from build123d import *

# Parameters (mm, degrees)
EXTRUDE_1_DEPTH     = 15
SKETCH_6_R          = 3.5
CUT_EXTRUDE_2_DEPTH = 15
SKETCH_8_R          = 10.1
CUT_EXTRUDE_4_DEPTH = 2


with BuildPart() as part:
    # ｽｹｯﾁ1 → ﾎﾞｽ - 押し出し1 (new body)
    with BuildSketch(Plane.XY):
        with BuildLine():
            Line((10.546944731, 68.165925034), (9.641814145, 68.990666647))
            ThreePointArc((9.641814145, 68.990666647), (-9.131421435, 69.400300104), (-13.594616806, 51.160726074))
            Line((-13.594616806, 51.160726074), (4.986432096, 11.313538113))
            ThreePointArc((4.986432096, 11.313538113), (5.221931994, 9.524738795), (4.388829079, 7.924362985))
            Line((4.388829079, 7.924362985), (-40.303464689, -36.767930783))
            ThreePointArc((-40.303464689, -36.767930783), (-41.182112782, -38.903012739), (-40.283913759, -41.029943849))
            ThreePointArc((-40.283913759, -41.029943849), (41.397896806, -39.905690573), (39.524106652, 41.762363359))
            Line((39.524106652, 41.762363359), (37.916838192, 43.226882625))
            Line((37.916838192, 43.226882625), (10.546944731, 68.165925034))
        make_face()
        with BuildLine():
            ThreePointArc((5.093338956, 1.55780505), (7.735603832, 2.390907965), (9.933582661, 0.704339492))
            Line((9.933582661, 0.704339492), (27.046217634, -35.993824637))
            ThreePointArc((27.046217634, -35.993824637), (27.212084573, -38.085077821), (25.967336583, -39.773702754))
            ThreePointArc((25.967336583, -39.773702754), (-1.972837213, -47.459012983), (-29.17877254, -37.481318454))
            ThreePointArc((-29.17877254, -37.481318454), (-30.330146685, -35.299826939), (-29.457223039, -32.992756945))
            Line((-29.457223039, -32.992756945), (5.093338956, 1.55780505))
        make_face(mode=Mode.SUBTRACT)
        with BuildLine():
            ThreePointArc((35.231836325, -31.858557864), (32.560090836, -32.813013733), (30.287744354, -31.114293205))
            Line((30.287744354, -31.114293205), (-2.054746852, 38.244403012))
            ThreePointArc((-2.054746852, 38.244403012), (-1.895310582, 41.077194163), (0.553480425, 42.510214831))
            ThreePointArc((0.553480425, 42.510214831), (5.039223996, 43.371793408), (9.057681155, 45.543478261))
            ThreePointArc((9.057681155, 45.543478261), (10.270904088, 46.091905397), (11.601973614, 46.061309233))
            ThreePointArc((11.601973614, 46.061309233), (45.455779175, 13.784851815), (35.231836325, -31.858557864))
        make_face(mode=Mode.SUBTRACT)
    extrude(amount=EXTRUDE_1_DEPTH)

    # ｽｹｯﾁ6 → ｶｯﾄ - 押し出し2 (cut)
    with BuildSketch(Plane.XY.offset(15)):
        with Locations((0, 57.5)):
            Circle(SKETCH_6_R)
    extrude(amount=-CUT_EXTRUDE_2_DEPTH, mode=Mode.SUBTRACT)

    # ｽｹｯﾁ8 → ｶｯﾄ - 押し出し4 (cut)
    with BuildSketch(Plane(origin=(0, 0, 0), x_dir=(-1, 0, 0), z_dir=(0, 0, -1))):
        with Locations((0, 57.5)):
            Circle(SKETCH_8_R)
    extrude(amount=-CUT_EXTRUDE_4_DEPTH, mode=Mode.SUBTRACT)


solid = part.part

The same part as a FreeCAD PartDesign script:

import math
import FreeCAD as App
import Part
import Sketcher

doc = App.newDocument("Part")
params = doc.addObject("Spreadsheet::Sheet", "Params")
for row, (alias, value) in enumerate([
    ("sketch1_radius", "15 mm"),
    ("sketch1_radius2", "3 mm"),
    ("sketch1_radius3", "3 mm"),
    ("sketch1_radius4", "3 mm"),
    ("sketch1_radius5", "3 mm"),
    ("pad1_length", "15 mm"),
    ("sketch2_diameter", "7 mm"),
    ("pocket1_length", "15 mm"),
    ("sketch3_diameter", "20.2 mm"),
    ("pocket2_length", "2 mm"),
], start=1):
    params.set(f"A{row}", alias)
    params.set(f"B{row}", "=" + value)
    params.setAlias(f"B{row}", alias)

body = doc.addObject("PartDesign::Body", "Body")

sketch1 = body.newObject("Sketcher::SketchObject", "Sketch")
sketch1.AttachmentSupport = (doc.getObject("XY_Plane"), [""])
sketch1.MapMode = "FlatFace"
sketch1.addGeometry(Part.LineSegment(App.Vector(10.546945, 68.165925, 0), App.Vector(9.641814, 68.990667, 0)), False)
sketch1.addGeometry(Part.ArcOfCircle(Part.Circle(App.Vector(0, 57.5, 0), App.Vector(0, 0, 1), 15), math.radians(50), math.radians(205)), False)
sketch1.addGeometry(Part.LineSegment(App.Vector(-13.594617, 51.160726, 0), App.Vector(4.986432, 11.313538, 0)), False)
sketch1.addGeometry(Part.ArcOfCircle(Part.Circle(App.Vector(2.267509, 10.045683, 0), App.Vector(0, 0, 1), 3), math.radians(-45), math.radians(25)), False)
sketch1.addGeometry(Part.LineSegment(App.Vector(4.388829, 7.924363, 0), App.Vector(-40.303465, -36.767931, 0)), False)
sketch1.addGeometry(Part.ArcOfCircle(Part.Circle(App.Vector(-38.182144, -38.889251, 0), App.Vector(0, 0, 1), 3), math.radians(135), math.radians(225.525657)), False)
sketch1.addGeometry(Part.ArcOfCircle(Part.Circle(App.Vector(0, 0, 0), App.Vector(0, 0, 1), 57.5), math.radians(-134.474343), math.radians(46.577265)), False)
sketch1.addGeometry(Part.LineSegment(App.Vector(39.524107, 41.762363, 0), App.Vector(37.916838, 43.226883, 0)), False)
sketch1.addGeometry(Part.LineSegment(App.Vector(37.916838, 43.226883, 0), App.Vector(10.546945, 68.165925, 0)), False)
sketch1.addGeometry(Part.LineSegment(App.Vector(-29.457223, -32.992757, 0), App.Vector(5.093339, 1.557805, 0)), False)
sketch1.addGeometry(Part.ArcOfCircle(Part.Circle(App.Vector(7.214659, -0.563515, 0), App.Vector(0, 0, 1), 3), math.radians(25), math.radians(135)), False)
sketch1.addGeometry(Part.LineSegment(App.Vector(9.933583, 0.704339, 0), App.Vector(27.046218, -35.993825, 0)), False)
sketch1.addGeometry(Part.ArcOfCircle(Part.Circle(App.Vector(24.327294, -37.261679, 0), App.Vector(0, 0, 1), 3), math.radians(-56.860403), math.radians(25)), False)
sketch1.addGeometry(Part.ArcOfCircle(Part.Circle(App.Vector(0, 0, 0), App.Vector(0, 0, 1), 47.5), math.radians(-127.900345), math.radians(-56.860403)), False)
sketch1.addGeometry(Part.ArcOfCircle(Part.Circle(App.Vector(-27.335903, -35.114077, 0), App.Vector(0, 0, 1), 3), math.radians(135), math.radians(232.099655)), False)
sketch1.addGeometry(Part.ArcOfCircle(Part.Circle(App.Vector(0, 0, 0), App.Vector(0, 0, 1), 47.5), math.radians(-42.121615), math.radians(75.862362)), False)
sketch1.addGeometry(Part.ArcOfCircle(Part.Circle(App.Vector(33.006668, -29.846438, 0), App.Vector(0, 0, 1), 3), math.radians(-155), math.radians(-42.121615)), False)
sketch1.addGeometry(Part.LineSegment(App.Vector(30.287744, -31.114293, 0), App.Vector(-2.054747, 38.244403, 0)), False)
sketch1.addGeometry(Part.ArcOfCircle(Part.Circle(App.Vector(0.664177, 39.512258, 0), App.Vector(0, 0, 1), 3), math.radians(92.11462), math.radians(205)), False)
sketch1.addGeometry(Part.ArcOfCircle(Part.Circle(App.Vector(0, 57.5, 0), App.Vector(0, 0, 1), 15), math.radians(-87.88538), math.radians(-52.854196)), False)
sketch1.addGeometry(Part.ArcOfCircle(Part.Circle(App.Vector(10.869217, 43.152174, 0), App.Vector(0, 0, 1), 3), math.radians(75.862362), math.radians(127.145804)), False)
sketch1.addConstraint(Sketcher.Constraint("Coincident", 0, 2, 1, 1))
sketch1.addConstraint(Sketcher.Constraint("Coincident", 1, 2, 2, 1))
sketch1.addConstraint(Sketcher.Constraint("Coincident", 2, 2, 3, 2))
sketch1.addConstraint(Sketcher.Constraint("Coincident", 3, 1, 4, 1))
sketch1.addConstraint(Sketcher.Constraint("Coincident", 4, 2, 5, 1))
sketch1.addConstraint(Sketcher.Constraint("Coincident", 5, 2, 6, 1))
sketch1.addConstraint(Sketcher.Constraint("Coincident", 6, 2, 7, 1))
sketch1.addConstraint(Sketcher.Constraint("Coincident", 7, 2, 8, 1))
sketch1.addConstraint(Sketcher.Constraint("Coincident", 8, 2, 0, 1))
sketch1.addConstraint(Sketcher.Constraint("Coincident", 9, 2, 10, 2))
sketch1.addConstraint(Sketcher.Constraint("Coincident", 10, 1, 11, 1))
sketch1.addConstraint(Sketcher.Constraint("Coincident", 11, 2, 12, 2))
sketch1.addConstraint(Sketcher.Constraint("Coincident", 12, 1, 13, 2))
sketch1.addConstraint(Sketcher.Constraint("Coincident", 13, 1, 14, 2))
sketch1.addConstraint(Sketcher.Constraint("Coincident", 14, 1, 9, 1))
sketch1.addConstraint(Sketcher.Constraint("Coincident", 15, 1, 16, 2))
sketch1.addConstraint(Sketcher.Constraint("Coincident", 16, 1, 17, 1))
sketch1.addConstraint(Sketcher.Constraint("Coincident", 17, 2, 18, 2))
sketch1.addConstraint(Sketcher.Constraint("Coincident", 18, 1, 19, 1))
sketch1.addConstraint(Sketcher.Constraint("Coincident", 19, 2, 20, 2))
sketch1.addConstraint(Sketcher.Constraint("Coincident", 20, 1, 15, 2))
sketch1.addConstraint(Sketcher.Constraint("Coincident", 6, 3, -1, 1))
sketch1.addConstraint(Sketcher.Constraint("Coincident", 13, 3, -1, 1))
sketch1.addConstraint(Sketcher.Constraint("Coincident", 15, 3, -1, 1))
sketch1.addConstraint(Sketcher.Constraint("Coincident", 19, 3, 1, 3))
sketch1.addConstraint(Sketcher.Constraint("PointOnObject", 1, 3, -2))
sketch1.addConstraint(Sketcher.Constraint("Radius", 1, 15.0))
sketch1.addConstraint(Sketcher.Constraint("Radius", 3, 3.0))
sketch1.addConstraint(Sketcher.Constraint("Radius", 5, 3.0))
sketch1.addConstraint(Sketcher.Constraint("Radius", 10, 3.0))
sketch1.addConstraint(Sketcher.Constraint("Radius", 12, 3.0))
sketch1.addConstraint(Sketcher.Constraint("Radius", 14, 3.0))
sketch1.addConstraint(Sketcher.Constraint("Radius", 16, 3.0))
sketch1.addConstraint(Sketcher.Constraint("Radius", 18, 3.0))
sketch1.addConstraint(Sketcher.Constraint("Radius", 19, 15.0))
sketch1.addConstraint(Sketcher.Constraint("Radius", 20, 3.0))
sketch1.addConstraint(Sketcher.Constraint("Radius", 6, 57.5))
sketch1.addConstraint(Sketcher.Constraint("Radius", 13, 47.5))
sketch1.addConstraint(Sketcher.Constraint("Radius", 15, 47.5))
sketch1.addConstraint(Sketcher.Constraint("DistanceY", -1, 1, 1, 3, 57.5))
sketch1.addConstraint(Sketcher.Constraint("DistanceY", 10, 3, 3, 3, 10.609199))
sketch1.addConstraint(Sketcher.Constraint("DistanceY", 1, 2, 8, 2, 17.005199))
sketch1.addConstraint(Sketcher.Constraint("DistanceX", 12, 1, 15, 1, 9.2645))
sketch1.addConstraint(Sketcher.Constraint("DistanceX", 18, 1, 19, 2, 8.504201))
sketch1.addConstraint(Sketcher.Constraint("Distance", 8, 37.027921))
sketch1.addConstraint(Sketcher.Constraint("DistanceX", -1, 1, 3, 3, 2.267509))
sketch1.addConstraint(Sketcher.Constraint("DistanceY", 5, 3, -1, 1, 38.889251))
sketch1.addConstraint(Sketcher.Constraint("DistanceX", -1, 1, 10, 3, 7.214659))
sketch1.addConstraint(Sketcher.Constraint("DistanceY", 12, 3, -1, 1, 37.261679))
sketch1.addConstraint(Sketcher.Constraint("DistanceY", 16, 3, -1, 1, 29.846438))
sketch1.addConstraint(Sketcher.Constraint("DistanceY", -1, 1, 2, 2, 11.313538))
sketch1.addConstraint(Sketcher.Constraint("DistanceX", -1, 1, 3, 1, 4.388829))
sketch1.addConstraint(Sketcher.Constraint("DistanceY", 4, 2, -1, 1, 36.767931))
sketch1.addConstraint(Sketcher.Constraint("DistanceX", -1, 1, 7, 2, 37.916838))
sketch1.addConstraint(Sketcher.Constraint("DistanceX", -1, 1, 9, 2, 5.093339))
sketch1.addConstraint(Sketcher.Constraint("DistanceY", -1, 1, 10, 1, 0.704339))
sketch1.addConstraint(Sketcher.Constraint("DistanceY", 13, 1, -1, 1, 37.481318))
sketch1.addConstraint(Sketcher.Constraint("DistanceX", -1, 1, 18, 1, 0.55348))
sketch1.addConstraint(Sketcher.Constraint("DistanceY", -1, 1, 20, 1, 46.061309))
sketch1.addConstraint(Sketcher.Constraint("DistanceX", 5, 3, 14, 3, 10.846242))
sketch1.addConstraint(Sketcher.Constraint("DistanceY", 14, 3, 10, 3, 34.550562))
sketch1.addConstraint(Sketcher.Constraint("DistanceX", 18, 3, 20, 3, 10.205041))
sketch1.addConstraint(Sketcher.Constraint("DistanceY", 18, 3, 0, 2, 29.478409))
sketch1.addConstraint(Sketcher.Constraint("DistanceY", 18, 3, 1, 2, 11.648468))
sketch1.addConstraint(Sketcher.Constraint("DistanceX", 5, 2, 5, 3, 2.101769))
sketch1.addConstraint(Sketcher.Constraint("DistanceX", 20, 3, 6, 2, 28.654889))
sketch1.addConstraint(Sketcher.Constraint("DistanceY", 6, 2, 7, 2, 1.464519))
sketch1.addConstraint(Sketcher.Constraint("DistanceX", 11, 2, 16, 3, 5.96045))
sketch1.addConstraint(Sketcher.Constraint("DistanceX", 12, 1, 11, 2, 1.078881))
sketch1.addConstraint(Sketcher.Constraint("DistanceX", 14, 1, 14, 3, 2.12132))
sketch1.addConstraint(Sketcher.Constraint("DistanceX", 16, 1, 15, 1, 4.944092))
sketch1.addConstraint(Sketcher.Constraint("DistanceY", 17, 2, 20, 3, 4.907771))
sketch1.setExpression("Constraints[26]", "Params.sketch1_radius")
sketch1.setExpression("Constraints[27]", "Params.sketch1_radius2")
sketch1.setExpression("Constraints[28]", "Params.sketch1_radius3")
sketch1.setExpression("Constraints[29]", "Params.sketch1_radius4")
sketch1.setExpression("Constraints[30]", "Params.sketch1_radius5")
pad1 = body.newObject("PartDesign::Pad", "Pad")
pad1.Profile = sketch1
pad1.setExpression("Length", "Params.pad1_length")

sketch2 = body.newObject("Sketcher::SketchObject", "Sketch001")
sketch2.AttachmentSupport = (doc.getObject("XY_Plane"), [""])
sketch2.MapMode = "FlatFace"
sketch2.AttachmentOffset = App.Placement(App.Vector(0, 0, 15), App.Rotation())
sketch2.addGeometry(Part.Circle(App.Vector(0, 57.5, 0), App.Vector(0, 0, 1), 3.5), False)
sketch2.addConstraint(Sketcher.Constraint("PointOnObject", 0, 3, -2))
sketch2.addConstraint(Sketcher.Constraint("Diameter", 0, 7.0))
sketch2.addConstraint(Sketcher.Constraint("DistanceY", -1, 1, 0, 3, 57.5))
sketch2.setExpression("Constraints[1]", "Params.sketch2_diameter")
pocket1 = body.newObject("PartDesign::Pocket", "Pocket")
pocket1.Profile = sketch2
pocket1.setExpression("Length", "Params.pocket1_length")

sketch3 = body.newObject("Sketcher::SketchObject", "Sketch002")
sketch3.AttachmentSupport = (doc.getObject("XY_Plane"), [""])
sketch3.MapMode = "FlatFace"
sketch3.addGeometry(Part.Circle(App.Vector(0, 57.5, 0), App.Vector(0, 0, 1), 10.1), False)
sketch3.addConstraint(Sketcher.Constraint("PointOnObject", 0, 3, -2))
sketch3.addConstraint(Sketcher.Constraint("Diameter", 0, 20.2))
sketch3.addConstraint(Sketcher.Constraint("DistanceY", -1, 1, 0, 3, 57.5))
sketch3.setExpression("Constraints[1]", "Params.sketch3_diameter")
pocket2 = body.newObject("PartDesign::Pocket", "Pocket001")
pocket2.Profile = sketch3
pocket2.setExpression("Length", "Params.pocket2_length")
pocket2.Reversed = True

doc.recompute()
